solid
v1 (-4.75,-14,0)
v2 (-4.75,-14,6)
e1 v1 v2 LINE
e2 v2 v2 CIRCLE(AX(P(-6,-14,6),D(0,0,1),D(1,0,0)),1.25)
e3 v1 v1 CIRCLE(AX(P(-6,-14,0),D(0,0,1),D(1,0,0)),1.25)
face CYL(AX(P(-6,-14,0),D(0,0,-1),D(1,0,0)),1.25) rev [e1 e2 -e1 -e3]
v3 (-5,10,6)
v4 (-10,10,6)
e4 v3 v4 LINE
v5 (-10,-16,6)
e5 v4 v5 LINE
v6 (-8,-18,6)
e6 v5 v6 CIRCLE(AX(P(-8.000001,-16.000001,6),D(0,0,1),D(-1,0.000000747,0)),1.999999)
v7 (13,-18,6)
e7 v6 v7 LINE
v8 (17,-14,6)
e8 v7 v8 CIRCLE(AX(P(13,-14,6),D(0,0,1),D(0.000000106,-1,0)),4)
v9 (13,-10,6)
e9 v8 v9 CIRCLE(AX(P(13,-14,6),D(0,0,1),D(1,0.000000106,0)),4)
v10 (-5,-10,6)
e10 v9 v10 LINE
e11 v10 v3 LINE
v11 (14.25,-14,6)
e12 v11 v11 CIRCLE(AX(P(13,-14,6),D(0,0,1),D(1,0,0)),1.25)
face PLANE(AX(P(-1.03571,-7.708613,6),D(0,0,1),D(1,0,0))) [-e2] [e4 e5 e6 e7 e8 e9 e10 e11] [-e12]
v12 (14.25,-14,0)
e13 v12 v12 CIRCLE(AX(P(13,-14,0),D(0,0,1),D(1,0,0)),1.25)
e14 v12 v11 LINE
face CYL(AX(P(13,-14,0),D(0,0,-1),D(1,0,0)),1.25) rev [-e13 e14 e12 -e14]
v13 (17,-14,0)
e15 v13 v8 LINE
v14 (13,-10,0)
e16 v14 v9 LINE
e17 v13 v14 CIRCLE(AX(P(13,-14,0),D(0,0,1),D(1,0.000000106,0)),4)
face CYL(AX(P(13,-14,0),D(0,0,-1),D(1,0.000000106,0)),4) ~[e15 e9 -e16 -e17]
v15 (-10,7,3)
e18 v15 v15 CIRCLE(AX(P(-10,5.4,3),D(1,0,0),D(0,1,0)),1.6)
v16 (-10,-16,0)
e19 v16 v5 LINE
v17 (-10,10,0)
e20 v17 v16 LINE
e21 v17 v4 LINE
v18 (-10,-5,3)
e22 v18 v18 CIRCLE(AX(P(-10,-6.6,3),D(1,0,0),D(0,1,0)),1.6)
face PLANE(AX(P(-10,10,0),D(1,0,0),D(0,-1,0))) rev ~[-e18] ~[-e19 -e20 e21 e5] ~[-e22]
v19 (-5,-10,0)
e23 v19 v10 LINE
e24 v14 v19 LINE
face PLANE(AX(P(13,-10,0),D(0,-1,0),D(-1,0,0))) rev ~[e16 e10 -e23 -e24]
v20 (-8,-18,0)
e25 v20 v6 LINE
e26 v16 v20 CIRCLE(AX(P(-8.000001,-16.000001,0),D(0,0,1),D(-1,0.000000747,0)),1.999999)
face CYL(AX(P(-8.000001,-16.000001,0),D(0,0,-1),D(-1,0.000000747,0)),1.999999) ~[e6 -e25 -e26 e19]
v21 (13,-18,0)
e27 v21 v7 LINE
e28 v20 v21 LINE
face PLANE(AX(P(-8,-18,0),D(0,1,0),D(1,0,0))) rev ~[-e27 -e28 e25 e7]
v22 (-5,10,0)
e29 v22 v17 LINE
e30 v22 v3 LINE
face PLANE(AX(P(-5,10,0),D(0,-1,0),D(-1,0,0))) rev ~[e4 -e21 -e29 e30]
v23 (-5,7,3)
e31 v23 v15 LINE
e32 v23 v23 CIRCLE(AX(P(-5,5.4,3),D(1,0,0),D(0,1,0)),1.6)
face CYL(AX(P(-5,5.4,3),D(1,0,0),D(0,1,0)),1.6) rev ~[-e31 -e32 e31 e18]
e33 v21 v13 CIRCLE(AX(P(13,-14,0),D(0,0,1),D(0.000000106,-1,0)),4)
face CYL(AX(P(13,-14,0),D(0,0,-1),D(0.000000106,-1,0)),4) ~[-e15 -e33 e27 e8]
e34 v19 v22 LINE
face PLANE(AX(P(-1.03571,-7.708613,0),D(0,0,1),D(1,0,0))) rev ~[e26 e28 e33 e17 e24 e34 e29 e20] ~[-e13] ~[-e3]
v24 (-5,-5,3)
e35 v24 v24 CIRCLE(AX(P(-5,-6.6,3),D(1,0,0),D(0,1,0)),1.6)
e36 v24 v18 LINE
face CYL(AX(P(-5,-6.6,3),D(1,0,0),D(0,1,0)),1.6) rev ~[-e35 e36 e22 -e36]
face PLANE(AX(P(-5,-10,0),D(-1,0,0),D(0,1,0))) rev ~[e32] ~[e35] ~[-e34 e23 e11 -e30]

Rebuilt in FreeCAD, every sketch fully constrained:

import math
import FreeCAD as App
import Part
import Sketcher

doc = App.newDocument("Part")
body = doc.addObject("PartDesign::Body", "Body")

sketch1 = body.newObject("Sketcher::SketchObject", "Sketch")
sketch1.AttachmentSupport = (doc.getObject("XY_Plane"), [""])
sketch1.MapMode = "FlatFace"
sketch1.addGeometry(Part.LineSegment(App.Vector(-5, -10, 0), App.Vector(-5, 10, 0)), False)
sketch1.addGeometry(Part.LineSegment(App.Vector(-5, 10, 0), App.Vector(-10, 10, 0)), False)
sketch1.addGeometry(Part.LineSegment(App.Vector(-10, 10, 0), App.Vector(-10, -16, 0)), False)
sketch1.addGeometry(Part.ArcOfCircle(Part.Circle(App.Vector(-8, -16, 0), App.Vector(0, 0, 1), 2), math.radians(180), math.radians(270)), False)
sketch1.addGeometry(Part.LineSegment(App.Vector(-8, -18, 0), App.Vector(13, -18, 0)), False)
sketch1.addGeometry(Part.ArcOfCircle(Part.Circle(App.Vector(13, -14, 0), App.Vector(0, 0, 1), 4), math.radians(-90), math.radians(0)), False)
sketch1.addGeometry(Part.ArcOfCircle(Part.Circle(App.Vector(13, -14, 0), App.Vector(0, 0, 1), 4), math.radians(0), math.radians(90)), False)
sketch1.addGeometry(Part.LineSegment(App.Vector(13, -10, 0), App.Vector(-5, -10, 0)), False)
sketch1.addGeometry(Part.Circle(App.Vector(-6, -14, 0), App.Vector(0, 0, 1), 1.2), False)
sketch1.addGeometry(Part.Circle(App.Vector(13, -14, 0), App.Vector(0, 0, 1), 1.2), False)
sketch1.addConstraint(Sketcher.Constraint("Coincident", 0, 2, 1, 1))
sketch1.addConstraint(Sketcher.Constraint("Coincident", 1, 2, 2, 1))
sketch1.addConstraint(Sketcher.Constraint("Tangent", 2, 2, 3, 1))
sketch1.addConstraint(Sketcher.Constraint("Tangent", 3, 2, 4, 1))
sketch1.addConstraint(Sketcher.Constraint("Tangent", 4, 2, 5, 1))
sketch1.addConstraint(Sketcher.Constraint("Tangent", 5, 2, 6, 1))
sketch1.addConstraint(Sketcher.Constraint("Tangent", 6, 2, 7, 1))
sketch1.addConstraint(Sketcher.Constraint("Coincident", 7, 2, 0, 1))
sketch1.addConstraint(Sketcher.Constraint("Vertical", 0))
sketch1.addConstraint(Sketcher.Constraint("Horizontal", 1))
sketch1.addConstraint(Sketcher.Constraint("Vertical", 2))
sketch1.addConstraint(Sketcher.Constraint("Horizontal", 4))
sketch1.addConstraint(Sketcher.Constraint("Horizontal", 7))
sketch1.addConstraint(Sketcher.Constraint("Coincident", 9, 3, 5, 3))
sketch1.addConstraint(Sketcher.Constraint("Equal", 5, 6))
sketch1.addConstraint(Sketcher.Constraint("Equal", 8, 9))
sketch1.addConstraint(Sketcher.Constraint("Horizontal", 6, 3, 8, 3))
sketch1.addConstraint(Sketcher.Constraint("Horizontal", 9, 3, 5, 2))
sketch1.addConstraint(Sketcher.Constraint("Radius", 3, 1.999999))
sketch1.addConstraint(Sketcher.Constraint("Radius", 5, 4.0))
sketch1.addConstraint(Sketcher.Constraint("Diameter", 8, 2.5))
sketch1.addConstraint(Sketcher.Constraint("DistanceX", 1, 2, 1, 1, 5.0))
sketch1.addConstraint(Sketcher.Constraint("DistanceX", 4, 1, 4, 2, 21.0))
sketch1.addConstraint(Sketcher.Constraint("DistanceY", 0, 1, 0, 2, 20.0))
sketch1.addConstraint(Sketcher.Constraint("DistanceX", 3, 3, -1, 1, 8.000001))
sketch1.addConstraint(Sketcher.Constraint("DistanceY", 3, 3, -1, 1, 16.000001))
sketch1.addConstraint(Sketcher.Constraint("DistanceX", 8, 3, -1, 1, 6.0))
pad1 = body.newObject("PartDesign::Pad", "Pad")
pad1.Profile = sketch1
pad1.Length = 6

sketch2 = body.newObject("Sketcher::SketchObject", "Sketch001")
sketch2.AttachmentSupport = (doc.getObject("YZ_Plane"), [""])
sketch2.MapMode = "FlatFace"
sketch2.AttachmentOffset = App.Placement(App.Vector(0, 0, -5), App.Rotation())
sketch2.addGeometry(Part.Circle(App.Vector(5.4, 3, 0), App.Vector(0, 0, 1), 1.6), False)
sketch2.addGeometry(Part.Circle(App.Vector(-6.6, 3, 0), App.Vector(0, 0, 1), 1.6), False)
sketch2.addConstraint(Sketcher.Constraint("Equal", 0, 1))
sketch2.addConstraint(Sketcher.Constraint("Horizontal", 0, 3, 1, 3))
sketch2.addConstraint(Sketcher.Constraint("Diameter", 0, 3.2))
sketch2.addConstraint(Sketcher.Constraint("DistanceY", -1, 1, 0, 3, 3.0))
sketch2.addConstraint(Sketcher.Constraint("DistanceX", 1, 3, 0, 3, 12.0))
sketch2.addConstraint(Sketcher.Constraint("DistanceX", -1, 1, 0, 3, 5.4))
pocket1 = body.newObject("PartDesign::Pocket", "Pocket")
pocket1.Profile = sketch2
pocket1.Type = "ThroughAll"

doc.recompute()
